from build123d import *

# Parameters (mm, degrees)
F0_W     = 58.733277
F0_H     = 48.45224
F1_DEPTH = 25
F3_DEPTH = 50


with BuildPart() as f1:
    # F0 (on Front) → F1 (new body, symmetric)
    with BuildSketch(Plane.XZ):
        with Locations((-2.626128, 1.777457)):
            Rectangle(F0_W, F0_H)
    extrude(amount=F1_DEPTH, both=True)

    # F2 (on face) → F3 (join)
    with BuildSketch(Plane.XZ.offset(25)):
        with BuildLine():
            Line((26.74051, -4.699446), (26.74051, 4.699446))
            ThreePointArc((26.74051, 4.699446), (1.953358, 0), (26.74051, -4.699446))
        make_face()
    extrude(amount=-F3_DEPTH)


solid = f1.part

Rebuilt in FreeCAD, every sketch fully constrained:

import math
import FreeCAD as App
import Part
import Sketcher

V = App.Vector
Q = App.Units.Quantity

doc = App.newDocument("Part")
body = doc.addObject("PartDesign::Body", "Body")

sketch1 = body.newObject("Sketcher::SketchObject", "Sketch")
sketch1.AttachmentSupport = (doc.getObject("XZ_Plane"), [""])
sketch1.MapMode = "FlatFace"
sketch1.addGeometry([
    Part.LineSegment(V(-32, 26, 0), V(-32, -22, 0)),
    Part.LineSegment(V(-32, -22, 0), V(27, -22, 0)),
    Part.LineSegment(V(27, -22, 0), V(27, 26, 0)),
    Part.LineSegment(V(27, 26, 0), V(-32, 26, 0)),
], False)
sketch1.addConstraint([
    Sketcher.Constraint("Coincident", 0, 2, 1, 1),
    Sketcher.Constraint("Coincident", 1, 2, 2, 1),
    Sketcher.Constraint("Coincident", 2, 2, 3, 1),
    Sketcher.Constraint("Coincident", 3, 2, 0, 1),
    Sketcher.Constraint("Vertical", 0),
    Sketcher.Constraint("Horizontal", 1),
    Sketcher.Constraint("Vertical", 2),
    Sketcher.Constraint("Horizontal", 3),
    Sketcher.Constraint("DistanceY", 0, 2, 0, 1, Q("48.45224 mm")),
    Sketcher.Constraint("DistanceX", 1, 1, 1, 2, Q("58.733277 mm")),
    Sketcher.Constraint("DistanceX", -1, 1, 1, 2, Q("26.74051 mm")),
    Sketcher.Constraint("DistanceY", 0, 2, -1, 1, Q("22.448663 mm")),
])
pad1 = body.newObject("PartDesign::Pad", "Pad")
pad1.Profile = sketch1
pad1.Length = 50
pad1.Midplane = True

sketch2 = body.newObject("Sketcher::SketchObject", "Sketch001")
sketch2.AttachmentSupport = (doc.getObject("XZ_Plane"), [""])
sketch2.MapMode = "FlatFace"
sketch2.AttachmentOffset = App.Placement(V(0, 0, 25), App.Rotation())
sketch2.addGeometry([
    Part.LineSegment(V(27, -5, 0), V(27, 5, 0)),
    Part.ArcOfCircle(Part.Circle(V(15, 0, 0), V(0, 0, 1), 13), math.radians(21), math.radians(339)),
], False)
sketch2.addConstraint([
    Sketcher.Constraint("Coincident", 0, 1, 1, 2),
    Sketcher.Constraint("Coincident", 1, 1, 0, 2),
    Sketcher.Constraint("Vertical", 0),
    Sketcher.Constraint("PointOnObject", 1, 3, -1),
    Sketcher.Constraint("Radius", 1, Q("12.839065 mm")),
    Sketcher.Constraint("DistanceY", 0, 1, 0, 2, Q("9.398892 mm")),
    Sketcher.Constraint("DistanceX", -1, 1, 0, 1, Q("26.74051 mm")),
])
pad2 = body.newObject("PartDesign::Pad", "Pad001")
pad2.Profile = sketch2
pad2.Length = 50
pad2.Reversed = True

doc.recompute()
